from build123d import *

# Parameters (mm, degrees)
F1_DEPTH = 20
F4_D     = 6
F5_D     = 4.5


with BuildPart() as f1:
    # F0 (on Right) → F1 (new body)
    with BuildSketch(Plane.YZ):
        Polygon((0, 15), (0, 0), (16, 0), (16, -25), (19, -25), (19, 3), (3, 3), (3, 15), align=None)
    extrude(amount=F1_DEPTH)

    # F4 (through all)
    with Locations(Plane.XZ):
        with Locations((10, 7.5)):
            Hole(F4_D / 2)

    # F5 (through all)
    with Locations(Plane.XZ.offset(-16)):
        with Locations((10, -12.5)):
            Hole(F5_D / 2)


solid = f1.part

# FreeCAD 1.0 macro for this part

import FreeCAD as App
import Part
import Sketcher
from FreeCAD import Vector

doc = App.newDocument("Part")
body = doc.addObject("PartDesign::Body", "Body")

# Sketch on YZ plane
sketch1 = body.newObject("Sketcher::SketchObject", "Sketch")
sketch1.AttachmentSupport = (doc.getObject("YZ_Plane"), [""])
sketch1.MapMode = "FlatFace"
sketch1.addGeometry(Part.LineSegment(Vector(0, 15, 0), Vector(0, 0, 0)), False)
sketch1.addGeometry(Part.LineSegment(Vector(0, 0, 0), Vector(16, 0, 0)), False)
sketch1.addGeometry(Part.LineSegment(Vector(16, 0, 0), Vector(16, -25, 0)), False)
sketch1.addGeometry(Part.LineSegment(Vector(16, -25, 0), Vector(19, -25, 0)), False)
sketch1.addGeometry(Part.LineSegment(Vector(19, -25, 0), Vector(19, 3, 0)), False)
sketch1.addGeometry(Part.LineSegment(Vector(19, 3, 0), Vector(3, 3, 0)), False)
sketch1.addGeometry(Part.LineSegment(Vector(3, 3, 0), Vector(3, 15, 0)), False)
sketch1.addGeometry(Part.LineSegment(Vector(3, 15, 0), Vector(0, 15, 0)), False)
sketch1.addConstraint(Sketcher.Constraint("Coincident", 0, 2, 1, 1))
sketch1.addConstraint(Sketcher.Constraint("Coincident", 1, 2, 2, 1))
sketch1.addConstraint(Sketcher.Constraint("Coincident", 2, 2, 3, 1))
sketch1.addConstraint(Sketcher.Constraint("Coincident", 3, 2, 4, 1))
sketch1.addConstraint(Sketcher.Constraint("Coincident", 4, 2, 5, 1))
sketch1.addConstraint(Sketcher.Constraint("Coincident", 5, 2, 6, 1))
sketch1.addConstraint(Sketcher.Constraint("Coincident", 6, 2, 7, 1))
sketch1.addConstraint(Sketcher.Constraint("Coincident", 7, 2, 0, 1))
sketch1.addConstraint(Sketcher.Constraint("Vertical", 0))
sketch1.addConstraint(Sketcher.Constraint("Horizontal", 1))
sketch1.addConstraint(Sketcher.Constraint("Vertical", 2))
sketch1.addConstraint(Sketcher.Constraint("Horizontal", 3))
sketch1.addConstraint(Sketcher.Constraint("Vertical", 4))
sketch1.addConstraint(Sketcher.Constraint("Horizontal", 5))
sketch1.addConstraint(Sketcher.Constraint("Vertical", 6))
sketch1.addConstraint(Sketcher.Constraint("Horizontal", 7))
sketch1.addConstraint(Sketcher.Constraint("Coincident", 0, 2, -1, 1))
sketch1.addConstraint(Sketcher.Constraint("Equal", 1, 5))
sketch1.addConstraint(Sketcher.Constraint("DistanceX", 1, 1, 1, 2, 16.0))
sketch1.addConstraint(Sketcher.Constraint("DistanceX", 3, 1, 3, 2, 3.0))
sketch1.addConstraint(Sketcher.Constraint("DistanceY", 0, 2, 0, 1, 15.0))
sketch1.addConstraint(Sketcher.Constraint("DistanceY", 2, 2, 2, 1, 25.0))
sketch1.addConstraint(Sketcher.Constraint("DistanceY", 4, 1, 4, 2, 28.0))
pad1 = body.newObject("PartDesign::Pad", "Pad")
pad1.Profile = sketch1
pad1.Length = 20

# Sketch on XZ plane
sketch2 = body.newObject("Sketcher::SketchObject", "Sketch001")
sketch2.AttachmentSupport = (doc.getObject("XZ_Plane"), [""])
sketch2.MapMode = "FlatFace"
sketch2.addGeometry(Part.Circle(Vector(10, 7.5, 0), Vector(0, 0, 1), 3), False)
sketch2.addConstraint(Sketcher.Constraint("Diameter", 0, 6.0))
sketch2.addConstraint(Sketcher.Constraint("DistanceX", -1, 1, 0, 3, 10.0))
sketch2.addConstraint(Sketcher.Constraint("DistanceY", -1, 1, 0, 3, 7.5))
doc.recompute()
hole = body.newObject("PartDesign::Hole", "Hole")
hole.Profile = sketch2
hole.ThreadType = "None"
hole.Diameter = 6
hole.DepthType = "ThroughAll"

# Sketch on XZ plane
sketch3 = body.newObject("Sketcher::SketchObject", "Sketch002")
sketch3.AttachmentSupport = (doc.getObject("XZ_Plane"), [""])
sketch3.MapMode = "FlatFace"
sketch3.AttachmentOffset = App.Placement(Vector(0, 0, -16), App.Rotation())
sketch3.addGeometry(Part.Circle(Vector(10, -12.5, 0), Vector(0, 0, 1), 2.2), False)
sketch3.addConstraint(Sketcher.Constraint("Diameter", 0, 4.5))
sketch3.addConstraint(Sketcher.Constraint("DistanceX", -1, 1, 0, 3, 10.0))
sketch3.addConstraint(Sketcher.Constraint("DistanceY", 0, 3, -1, 1, 12.5))
doc.recompute()
hole2 = body.newObject("PartDesign::Hole", "Hole001")
hole2.Profile = sketch3
hole2.ThreadType = "None"
hole2.Diameter = 4.5
hole2.DepthType = "ThroughAll"

doc.recompute()
